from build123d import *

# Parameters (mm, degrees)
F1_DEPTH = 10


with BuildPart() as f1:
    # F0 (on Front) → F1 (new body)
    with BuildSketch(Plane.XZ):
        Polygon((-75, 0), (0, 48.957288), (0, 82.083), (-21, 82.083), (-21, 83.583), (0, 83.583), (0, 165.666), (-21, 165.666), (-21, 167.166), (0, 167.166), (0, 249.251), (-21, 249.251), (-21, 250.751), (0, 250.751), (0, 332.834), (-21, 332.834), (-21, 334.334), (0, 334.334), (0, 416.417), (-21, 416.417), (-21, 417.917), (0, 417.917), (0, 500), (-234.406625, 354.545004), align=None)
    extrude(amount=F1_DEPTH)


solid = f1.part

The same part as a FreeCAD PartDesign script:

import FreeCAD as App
import Part
import Sketcher
Q = App.Units.Quantity


def add_polygon(sketch, points):
    """Adds a closed chain of lines whose ends are joined by coincident constraints."""
    first, n = sketch.GeometryCount, len(points)
    for a, b in zip(points, points[1:] + points[:1]):
        sketch.addGeometry(Part.LineSegment(App.Vector(*a, 0), App.Vector(*b, 0)), False)
    for i in range(n):
        sketch.addConstraint(Sketcher.Constraint("Coincident", first + i, 2, first + (i + 1) % n, 1))

doc = App.newDocument("Part")
body = doc.addObject("PartDesign::Body", "Body")

sketch1 = body.newObject("Sketcher::SketchObject", "Sketch")
sketch1.AttachmentSupport = (doc.getObject("XZ_Plane"), [""])
sketch1.MapMode = "FlatFace"
add_polygon(sketch1, [(-75, 0), (0, 49), (0, 82.1), (-21, 82.1), (-21, 83.6), (0, 83.6), (0, 165.7), (-21, 165.7), (-21, 167.2), (0, 167.2), (0, 249.3), (-21, 249.3), (-21, 250.8), (0, 250.8), (0, 332.8), (-21, 332.8), (-21, 334.3), (0, 334.3), (0, 416.4), (-21, 416.4), (-21, 417.9), (0, 417.9), (0, 500), (-234.4, 354.5)])
sketch1.addConstraint(Sketcher.Constraint("Vertical", 1))
sketch1.addConstraint(Sketcher.Constraint("Horizontal", 2))
sketch1.addConstraint(Sketcher.Constraint("Vertical", 3))
sketch1.addConstraint(Sketcher.Constraint("Horizontal", 4))
sketch1.addConstraint(Sketcher.Constraint("Vertical", 5))
sketch1.addConstraint(Sketcher.Constraint("Horizontal", 6))
sketch1.addConstraint(Sketcher.Constraint("Vertical", 7))
sketch1.addConstraint(Sketcher.Constraint("Horizontal", 8))
sketch1.addConstraint(Sketcher.Constraint("Vertical", 9))
sketch1.addConstraint(Sketcher.Constraint("Horizontal", 10))
sketch1.addConstraint(Sketcher.Constraint("Vertical", 11))
sketch1.addConstraint(Sketcher.Constraint("Horizontal", 12))
sketch1.addConstraint(Sketcher.Constraint("Vertical", 13))
sketch1.addConstraint(Sketcher.Constraint("Horizontal", 14))
sketch1.addConstraint(Sketcher.Constraint("Vertical", 15))
sketch1.addConstraint(Sketcher.Constraint("Horizontal", 16))
sketch1.addConstraint(Sketcher.Constraint("Vertical", 17))
sketch1.addConstraint(Sketcher.Constraint("Horizontal", 18))
sketch1.addConstraint(Sketcher.Constraint("Vertical", 19))
sketch1.addConstraint(Sketcher.Constraint("Horizontal", 20))
sketch1.addConstraint(Sketcher.Constraint("Vertical", 21))
sketch1.addConstraint(Sketcher.Constraint("PointOnObject", 0, 2, -2))
sketch1.addConstraint(Sketcher.Constraint("PointOnObject", 4, 2, -2))
sketch1.addConstraint(Sketcher.Constraint("PointOnObject", 8, 2, -2))
sketch1.addConstraint(Sketcher.Constraint("PointOnObject", 12, 2, -2))
sketch1.addConstraint(Sketcher.Constraint("PointOnObject", 16, 2, -2))
sketch1.addConstraint(Sketcher.Constraint("PointOnObject", 20, 2, -2))
sketch1.addConstraint(Sketcher.Constraint("PointOnObject", 23, 2, -1))
sketch1.addConstraint(Sketcher.Constraint("Vertical", 3, 2, 6, 2))
sketch1.addConstraint(Sketcher.Constraint("Vertical", 7, 2, 10, 2))
sketch1.addConstraint(Sketcher.Constraint("Vertical", 11, 2, 14, 2))
sketch1.addConstraint(Sketcher.Constraint("Vertical", 15, 2, 18, 2))
sketch1.addConstraint(Sketcher.Constraint("Equal", 3, 7))
sketch1.addConstraint(Sketcher.Constraint("Equal", 7, 11))
sketch1.addConstraint(Sketcher.Constraint("Equal", 5, 13))
sketch1.addConstraint(Sketcher.Constraint("Equal", 11, 15))
sketch1.addConstraint(Sketcher.Constraint("Equal", 13, 17))
sketch1.addConstraint(Sketcher.Constraint("Equal", 15, 19))
sketch1.addConstraint(Sketcher.Constraint("Equal", 17, 21))
sketch1.addConstraint(Sketcher.Constraint("DistanceX", 2, 2, 2, 1, Q("21 mm")))
sketch1.addConstraint(Sketcher.Constraint("DistanceY", 3, 1, 3, 2, Q("1.5 mm")))
sketch1.addConstraint(Sketcher.Constraint("DistanceY", -1, 1, 21, 2, Q("500 mm")))
sketch1.addConstraint(Sketcher.Constraint("DistanceX", 23, 2, -1, 1, Q("75 mm")))
sketch1.addConstraint(Sketcher.Constraint("DistanceY", 5, 1, 5, 2, Q("82.083 mm")))
sketch1.addConstraint(Sketcher.Constraint("DistanceY", 9, 1, 9, 2, Q("82.085 mm")))
sketch1.addConstraint(Sketcher.Constraint("Distance", 0, Q("89.564591 mm")))
sketch1.addConstraint(Sketcher.Constraint("Distance", 22, Q("275.868849 mm")))
sketch1.addConstraint(Sketcher.Constraint("Distance", 23, Q("388.732082 mm")))
pad1 = body.newObject("PartDesign::Pad", "Pad")
pad1.Profile = sketch1
pad1.Length = 10

doc.recompute()
